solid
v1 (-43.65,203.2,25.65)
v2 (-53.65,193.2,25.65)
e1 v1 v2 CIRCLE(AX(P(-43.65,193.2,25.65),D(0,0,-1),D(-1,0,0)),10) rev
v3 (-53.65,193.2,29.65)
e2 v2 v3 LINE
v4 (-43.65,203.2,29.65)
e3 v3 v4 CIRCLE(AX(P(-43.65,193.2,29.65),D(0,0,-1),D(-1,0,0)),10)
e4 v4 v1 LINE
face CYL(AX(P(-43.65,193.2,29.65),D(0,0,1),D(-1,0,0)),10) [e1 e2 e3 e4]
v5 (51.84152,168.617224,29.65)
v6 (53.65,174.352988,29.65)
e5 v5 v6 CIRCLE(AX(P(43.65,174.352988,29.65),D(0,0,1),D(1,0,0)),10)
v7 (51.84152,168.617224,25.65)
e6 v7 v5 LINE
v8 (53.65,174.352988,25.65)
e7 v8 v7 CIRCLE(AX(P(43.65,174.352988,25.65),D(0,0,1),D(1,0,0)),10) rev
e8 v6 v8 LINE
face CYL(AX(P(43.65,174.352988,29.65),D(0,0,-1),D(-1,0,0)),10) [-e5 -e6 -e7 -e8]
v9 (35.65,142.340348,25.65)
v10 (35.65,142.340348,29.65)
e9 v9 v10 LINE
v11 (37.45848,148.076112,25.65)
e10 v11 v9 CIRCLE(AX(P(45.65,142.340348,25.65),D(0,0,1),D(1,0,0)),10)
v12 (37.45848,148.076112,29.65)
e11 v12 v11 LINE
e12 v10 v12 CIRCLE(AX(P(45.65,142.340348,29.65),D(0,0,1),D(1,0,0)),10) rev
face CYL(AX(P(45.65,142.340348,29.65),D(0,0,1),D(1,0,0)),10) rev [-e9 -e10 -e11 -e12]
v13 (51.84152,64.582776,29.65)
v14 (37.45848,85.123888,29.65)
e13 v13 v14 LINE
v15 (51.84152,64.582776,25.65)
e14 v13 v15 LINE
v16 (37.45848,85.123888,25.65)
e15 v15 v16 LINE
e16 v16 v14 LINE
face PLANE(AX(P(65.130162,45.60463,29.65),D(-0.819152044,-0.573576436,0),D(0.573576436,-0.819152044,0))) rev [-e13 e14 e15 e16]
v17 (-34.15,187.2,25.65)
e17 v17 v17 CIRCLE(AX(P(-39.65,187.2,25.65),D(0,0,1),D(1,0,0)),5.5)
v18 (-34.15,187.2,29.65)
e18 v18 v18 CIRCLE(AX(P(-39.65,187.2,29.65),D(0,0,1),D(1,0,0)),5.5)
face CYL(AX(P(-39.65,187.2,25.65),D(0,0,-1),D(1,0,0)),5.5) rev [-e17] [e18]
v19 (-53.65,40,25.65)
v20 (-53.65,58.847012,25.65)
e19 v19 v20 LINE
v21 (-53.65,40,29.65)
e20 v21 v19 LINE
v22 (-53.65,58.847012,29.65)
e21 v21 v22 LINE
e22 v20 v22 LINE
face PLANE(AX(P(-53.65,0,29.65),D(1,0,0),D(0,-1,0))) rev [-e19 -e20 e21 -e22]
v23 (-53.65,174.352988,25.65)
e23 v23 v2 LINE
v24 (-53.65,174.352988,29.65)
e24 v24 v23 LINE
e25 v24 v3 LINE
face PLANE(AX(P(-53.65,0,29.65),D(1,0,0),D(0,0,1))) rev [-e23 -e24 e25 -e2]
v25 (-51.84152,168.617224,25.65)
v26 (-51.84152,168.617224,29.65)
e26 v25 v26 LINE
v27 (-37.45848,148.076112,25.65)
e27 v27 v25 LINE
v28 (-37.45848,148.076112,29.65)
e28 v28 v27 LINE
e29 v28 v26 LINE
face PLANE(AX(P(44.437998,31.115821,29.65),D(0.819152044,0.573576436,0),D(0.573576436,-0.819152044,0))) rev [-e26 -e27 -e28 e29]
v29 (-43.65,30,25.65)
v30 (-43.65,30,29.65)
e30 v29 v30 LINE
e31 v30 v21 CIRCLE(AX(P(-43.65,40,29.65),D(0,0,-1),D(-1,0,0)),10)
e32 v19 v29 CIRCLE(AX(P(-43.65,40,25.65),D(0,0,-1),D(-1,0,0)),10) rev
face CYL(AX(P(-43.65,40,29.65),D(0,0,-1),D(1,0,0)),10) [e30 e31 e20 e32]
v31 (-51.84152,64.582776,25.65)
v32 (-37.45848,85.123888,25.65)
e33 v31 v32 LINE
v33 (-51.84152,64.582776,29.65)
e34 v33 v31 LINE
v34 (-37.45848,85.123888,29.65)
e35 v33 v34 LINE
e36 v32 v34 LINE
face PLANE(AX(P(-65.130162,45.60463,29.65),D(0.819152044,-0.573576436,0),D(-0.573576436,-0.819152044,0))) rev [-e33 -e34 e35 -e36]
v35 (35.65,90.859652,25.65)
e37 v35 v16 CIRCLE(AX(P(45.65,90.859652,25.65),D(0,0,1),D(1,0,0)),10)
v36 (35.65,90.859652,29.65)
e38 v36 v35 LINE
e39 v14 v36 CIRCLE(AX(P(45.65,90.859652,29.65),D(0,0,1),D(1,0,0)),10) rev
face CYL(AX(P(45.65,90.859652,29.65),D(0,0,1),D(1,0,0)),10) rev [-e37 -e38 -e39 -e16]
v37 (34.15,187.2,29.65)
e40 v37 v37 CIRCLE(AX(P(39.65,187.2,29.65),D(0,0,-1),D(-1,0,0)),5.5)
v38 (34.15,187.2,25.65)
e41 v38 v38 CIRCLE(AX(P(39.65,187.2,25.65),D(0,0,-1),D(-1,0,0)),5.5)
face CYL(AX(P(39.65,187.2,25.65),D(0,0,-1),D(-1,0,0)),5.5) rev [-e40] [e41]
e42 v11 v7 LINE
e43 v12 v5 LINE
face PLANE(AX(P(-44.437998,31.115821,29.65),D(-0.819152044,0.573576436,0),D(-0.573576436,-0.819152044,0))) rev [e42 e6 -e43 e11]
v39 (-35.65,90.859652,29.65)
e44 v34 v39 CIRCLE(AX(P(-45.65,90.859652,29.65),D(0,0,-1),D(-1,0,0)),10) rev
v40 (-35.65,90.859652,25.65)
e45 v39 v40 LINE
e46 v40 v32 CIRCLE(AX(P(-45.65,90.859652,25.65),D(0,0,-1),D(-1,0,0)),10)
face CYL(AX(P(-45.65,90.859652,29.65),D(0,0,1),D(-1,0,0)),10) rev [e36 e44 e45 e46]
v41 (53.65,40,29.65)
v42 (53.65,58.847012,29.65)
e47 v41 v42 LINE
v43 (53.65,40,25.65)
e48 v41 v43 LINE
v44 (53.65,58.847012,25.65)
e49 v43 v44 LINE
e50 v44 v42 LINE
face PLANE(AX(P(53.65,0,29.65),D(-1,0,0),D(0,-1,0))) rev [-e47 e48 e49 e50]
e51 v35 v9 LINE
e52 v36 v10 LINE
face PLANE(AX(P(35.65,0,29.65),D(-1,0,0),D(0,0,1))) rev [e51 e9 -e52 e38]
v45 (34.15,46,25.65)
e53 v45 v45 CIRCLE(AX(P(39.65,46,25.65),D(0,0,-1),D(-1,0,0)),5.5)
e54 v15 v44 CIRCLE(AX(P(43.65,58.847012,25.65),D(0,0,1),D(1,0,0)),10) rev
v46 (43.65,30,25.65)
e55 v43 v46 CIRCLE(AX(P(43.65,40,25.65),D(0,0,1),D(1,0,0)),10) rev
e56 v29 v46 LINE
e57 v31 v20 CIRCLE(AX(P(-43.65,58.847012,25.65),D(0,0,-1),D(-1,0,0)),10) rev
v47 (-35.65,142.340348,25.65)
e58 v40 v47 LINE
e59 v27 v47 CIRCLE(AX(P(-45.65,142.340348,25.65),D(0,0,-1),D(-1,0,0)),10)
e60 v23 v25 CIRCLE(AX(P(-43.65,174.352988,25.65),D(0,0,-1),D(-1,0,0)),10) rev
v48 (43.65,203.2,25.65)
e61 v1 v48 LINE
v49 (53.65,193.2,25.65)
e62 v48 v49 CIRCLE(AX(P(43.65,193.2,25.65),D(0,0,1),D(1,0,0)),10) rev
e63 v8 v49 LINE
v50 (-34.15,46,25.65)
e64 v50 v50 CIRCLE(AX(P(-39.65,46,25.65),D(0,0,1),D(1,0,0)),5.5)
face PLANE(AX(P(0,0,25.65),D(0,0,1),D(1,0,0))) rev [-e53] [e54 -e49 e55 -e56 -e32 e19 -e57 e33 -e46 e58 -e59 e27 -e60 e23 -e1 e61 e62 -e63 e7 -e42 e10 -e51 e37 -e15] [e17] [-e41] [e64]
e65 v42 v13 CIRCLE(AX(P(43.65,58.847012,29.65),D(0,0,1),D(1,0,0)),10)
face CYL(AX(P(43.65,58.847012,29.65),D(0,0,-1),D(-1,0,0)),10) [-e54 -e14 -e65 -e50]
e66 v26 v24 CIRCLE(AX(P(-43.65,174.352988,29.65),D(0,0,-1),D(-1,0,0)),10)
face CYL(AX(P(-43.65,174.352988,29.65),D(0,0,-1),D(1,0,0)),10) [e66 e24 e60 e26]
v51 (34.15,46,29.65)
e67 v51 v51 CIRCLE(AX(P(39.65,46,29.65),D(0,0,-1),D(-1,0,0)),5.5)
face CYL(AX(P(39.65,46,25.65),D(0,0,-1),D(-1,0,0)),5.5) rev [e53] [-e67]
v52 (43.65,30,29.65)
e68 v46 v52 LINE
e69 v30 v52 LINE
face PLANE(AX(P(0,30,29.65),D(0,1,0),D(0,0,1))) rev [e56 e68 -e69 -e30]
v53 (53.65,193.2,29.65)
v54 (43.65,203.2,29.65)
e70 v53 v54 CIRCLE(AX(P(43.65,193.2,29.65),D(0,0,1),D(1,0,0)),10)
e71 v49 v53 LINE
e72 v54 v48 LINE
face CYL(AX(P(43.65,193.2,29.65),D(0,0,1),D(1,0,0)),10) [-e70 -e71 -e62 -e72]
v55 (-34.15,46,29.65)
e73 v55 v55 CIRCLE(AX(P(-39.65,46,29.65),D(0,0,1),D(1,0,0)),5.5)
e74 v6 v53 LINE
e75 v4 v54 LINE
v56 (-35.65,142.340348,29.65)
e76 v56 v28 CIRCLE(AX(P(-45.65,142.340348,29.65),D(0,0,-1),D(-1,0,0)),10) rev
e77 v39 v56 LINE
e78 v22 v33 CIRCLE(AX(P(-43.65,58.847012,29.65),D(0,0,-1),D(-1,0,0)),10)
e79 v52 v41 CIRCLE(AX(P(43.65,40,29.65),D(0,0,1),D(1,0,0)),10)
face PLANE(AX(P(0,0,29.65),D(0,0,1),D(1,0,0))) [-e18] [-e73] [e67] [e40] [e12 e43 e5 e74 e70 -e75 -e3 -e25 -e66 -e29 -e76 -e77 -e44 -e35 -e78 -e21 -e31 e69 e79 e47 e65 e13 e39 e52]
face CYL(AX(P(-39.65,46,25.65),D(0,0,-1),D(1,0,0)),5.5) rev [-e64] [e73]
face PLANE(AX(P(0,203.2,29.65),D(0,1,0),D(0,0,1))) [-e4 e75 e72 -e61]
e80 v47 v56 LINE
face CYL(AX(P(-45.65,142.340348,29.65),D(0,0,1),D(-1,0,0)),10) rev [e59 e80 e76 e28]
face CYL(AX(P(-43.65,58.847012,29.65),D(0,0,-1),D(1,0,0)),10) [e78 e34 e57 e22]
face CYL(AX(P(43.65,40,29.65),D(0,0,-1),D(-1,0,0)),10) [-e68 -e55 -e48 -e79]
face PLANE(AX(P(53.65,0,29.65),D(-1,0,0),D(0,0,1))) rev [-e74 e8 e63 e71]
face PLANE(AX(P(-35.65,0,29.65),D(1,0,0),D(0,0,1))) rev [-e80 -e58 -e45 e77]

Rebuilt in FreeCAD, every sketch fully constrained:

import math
import FreeCAD as App
import Part
import Sketcher
Q = App.Units.Quantity


def edges_at(feature, points):
    """Names of the edges that pass closest to the given points."""
    edges = feature.Shape.Edges
    near = lambda p: min(range(len(edges)), key=lambda i: edges[i].distToShape(Part.Vertex(*p))[0])
    return sorted({f"Edge{near(p) + 1}" for p in points})

doc = App.newDocument("Part")
body = doc.addObject("PartDesign::Body", "Body")

sketch1 = doc.addObject("Sketcher::SketchObject", "Sketch")
body.addObject(sketch1)
sketch1.AttachmentSupport = (doc.XY_Plane, [""])
sketch1.MapMode = "FlatFace"
sketch1.addGeometry([
    Part.LineSegment(App.Vector(-25.65, 203.2, 0), App.Vector(-25.65, 0, 0)),
    Part.LineSegment(App.Vector(-25.65, 0, 0), App.Vector(-21.07866, 0, 0)),
    Part.LineSegment(App.Vector(-21.07866, 0, 0), App.Vector(-21.07866, 203.2, 0)),
    Part.LineSegment(App.Vector(-21.07866, 203.2, 0), App.Vector(-25.65, 203.2, 0)),
], False)
sketch1.addConstraint([
    Sketcher.Constraint("Coincident", 0, 2, 1, 1),
    Sketcher.Constraint("Coincident", 1, 2, 2, 1),
    Sketcher.Constraint("Coincident", 2, 2, 3, 1),
    Sketcher.Constraint("Coincident", 3, 2, 0, 1),
    Sketcher.Constraint("Vertical", 0),
    Sketcher.Constraint("Horizontal", 1),
    Sketcher.Constraint("Vertical", 2),
    Sketcher.Constraint("Horizontal", 3),
    Sketcher.Constraint("PointOnObject", 0, 2, -1),
    Sketcher.Constraint("DistanceY", 0, 2, 0, 1, Q("203.2 mm")),
    Sketcher.Constraint("DistanceX", 0, 2, -1, 1, Q("25.65 mm")),
    Sketcher.Constraint("DistanceX", 1, 1, 1, 2, Q("4.57134 mm")),
])
revolution = doc.addObject("PartDesign::Revolution", "Revolution")
body.addObject(revolution)
revolution.Profile = sketch1
revolution.ReferenceAxis = (sketch1, ["V_Axis"])
revolution.Angle = 360

sketch2 = doc.addObject("Sketcher::SketchObject", "Sketch001")
body.addObject(sketch2)
sketch2.AttachmentSupport = (doc.XZ_Plane, [""])
sketch2.MapMode = "FlatFace"
sketch2.AttachmentOffset = App.Placement(App.Vector(0, 0, -203.2), App.Rotation())
sketch2.addGeometry([
    Part.LineSegment(App.Vector(25.65, 0, 0), App.Vector(25.65, 25.65, 0)),
    Part.LineSegment(App.Vector(25.65, 25.65, 0), App.Vector(0, 25.65, 0)),
    Part.ArcOfCircle(Part.Circle(App.Vector(0, 0, 0), App.Vector(0, 0, 1), 25.65), math.radians(0), math.radians(90)),
    Part.ArcOfCircle(Part.Circle(App.Vector(0, 0, 0), App.Vector(0, 0, 1), 25.65), math.radians(90), math.radians(180)),
    Part.LineSegment(App.Vector(0, 25.65, 0), App.Vector(-25.65, 25.65, 0)),
    Part.LineSegment(App.Vector(-25.65, 25.65, 0), App.Vector(-25.65, 0, 0)),
], False)
sketch2.addConstraint([
    Sketcher.Constraint("Coincident", 0, 2, 1, 1),
    Sketcher.Constraint("Tangent", 1, 2, 2, 2),
    Sketcher.Constraint("Tangent", 2, 1, 0, 1),
    Sketcher.Constraint("Tangent", 3, 1, 4, 1),
    Sketcher.Constraint("Coincident", 4, 2, 5, 1),
    Sketcher.Constraint("Tangent", 5, 2, 3, 2),
    Sketcher.Constraint("Vertical", 0),
    Sketcher.Constraint("Horizontal", 1),
    Sketcher.Constraint("Horizontal", 4),
    Sketcher.Constraint("Vertical", 5),
    Sketcher.Constraint("Coincident", 2, 3, -1, 1),
    Sketcher.Constraint("Coincident", 3, 3, -1, 1),
    Sketcher.Constraint("Equal", 2, 3),
    Sketcher.Constraint("Radius", 2, Q("25.65 mm")),
])
pad1 = doc.addObject("PartDesign::Pad", "Pad")
body.addObject(pad1)
pad1.Profile = sketch2
pad1.Length = 173.2
body2 = doc.addObject("PartDesign::Body", "Body001")

sketch3 = doc.addObject("Sketcher::SketchObject", "Sketch002")
body2.addObject(sketch3)
sketch3.AttachmentSupport = (doc.getObject("XY_Plane001"), [""])
sketch3.MapMode = "FlatFace"
sketch3.AttachmentOffset = App.Placement(App.Vector(0, 0, 25.65), App.Rotation())
sketch3.addGeometry([
    Part.LineSegment(App.Vector(53.65, 203.2, 0), App.Vector(-25.65, 203.2, 0)),
    Part.LineSegment(App.Vector(-25.65, 203.2, 0), App.Vector(-25.65, 30, 0)),
    Part.LineSegment(App.Vector(-25.65, 30, 0), App.Vector(53.65, 30, 0)),
    Part.LineSegment(App.Vector(53.65, 30, 0), App.Vector(53.65, 62, 0)),
    Part.LineSegment(App.Vector(53.65, 62, 0), App.Vector(35.65, 87.706664, 0)),
    Part.LineSegment(App.Vector(35.65, 87.706664, 0), App.Vector(35.65, 145.493336, 0)),
    Part.LineSegment(App.Vector(35.65, 145.493336, 0), App.Vector(53.65, 171.2, 0)),
    Part.LineSegment(App.Vector(53.65, 171.2, 0), App.Vector(53.65, 203.2, 0)),
], False)
sketch3.addConstraint([
    Sketcher.Constraint("Coincident", 0, 2, 1, 1),
    Sketcher.Constraint("Coincident", 1, 2, 2, 1),
    Sketcher.Constraint("Coincident", 2, 2, 3, 1),
    Sketcher.Constraint("Coincident", 3, 2, 4, 1),
    Sketcher.Constraint("Coincident", 4, 2, 5, 1),
    Sketcher.Constraint("Coincident", 5, 2, 6, 1),
    Sketcher.Constraint("Coincident", 6, 2, 7, 1),
    Sketcher.Constraint("Coincident", 7, 2, 0, 1),
    Sketcher.Constraint("Horizontal", 0),
    Sketcher.Constraint("Vertical", 1),
    Sketcher.Constraint("Horizontal", 2),
    Sketcher.Constraint("Vertical", 3),
    Sketcher.Constraint("Vertical", 5),
    Sketcher.Constraint("Vertical", 7),
    Sketcher.Constraint("Vertical", 3, 2, 6, 2),
    Sketcher.Constraint("Equal", 3, 7),
    Sketcher.Constraint("Equal", 4, 6),
    Sketcher.Constraint("DistanceY", 3, 1, 3, 2, Q("32 mm")),
    Sketcher.Constraint("Angle", 4, Q("125 deg")),
    Sketcher.Constraint("DistanceX", 0, 2, 0, 1, Q("79.3 mm")),
    Sketcher.Constraint("DistanceY", 1, 2, 1, 1, Q("173.2 mm")),
    Sketcher.Constraint("DistanceY", -1, 1, 1, 2, Q("30 mm")),
    Sketcher.Constraint("DistanceX", 4, 2, 3, 2, Q("18 mm")),
    Sketcher.Constraint("DistanceX", 0, 2, -1, 1, Q("25.65 mm")),
])
pad2 = doc.addObject("PartDesign::Pad", "Pad001")
body2.addObject(pad2)
pad2.Profile = sketch3
pad2.Length = 4

sketch4 = doc.addObject("Sketcher::SketchObject", "Sketch003")
body2.addObject(sketch4)
sketch4.AttachmentSupport = (doc.getObject("YZ_Plane001"), [""])
sketch4.MapMode = "FlatFace"
sketch4.AttachmentOffset = App.Placement(App.Vector(0, 0, 39.65), App.Rotation())
sketch4.addGeometry([
    Part.LineSegment(App.Vector(46, 29.65, 0), App.Vector(46, 25.65, 0)),
    Part.LineSegment(App.Vector(46, 25.65, 0), App.Vector(51.5, 25.65, 0)),
    Part.LineSegment(App.Vector(51.5, 25.65, 0), App.Vector(51.5, 29.65, 0)),
    Part.LineSegment(App.Vector(51.5, 29.65, 0), App.Vector(46, 29.65, 0)),
], False)
sketch4.addGeometry(Part.LineSegment(App.Vector(46, 25.65, 0), App.Vector(46, 29.65, 0)), True)
sketch4.addConstraint([
    Sketcher.Constraint("Coincident", 0, 2, 1, 1),
    Sketcher.Constraint("Coincident", 1, 2, 2, 1),
    Sketcher.Constraint("Coincident", 2, 2, 3, 1),
    Sketcher.Constraint("Coincident", 3, 2, 0, 1),
    Sketcher.Constraint("Vertical", 0),
    Sketcher.Constraint("Horizontal", 1),
    Sketcher.Constraint("Vertical", 2),
    Sketcher.Constraint("Horizontal", 3),
    Sketcher.Constraint("Vertical", 4),
    Sketcher.Constraint("Coincident", 4, 1, 0, 2),
    Sketcher.Constraint("Horizontal", 2, 2, 4, 2),
    Sketcher.Constraint("DistanceY", 0, 2, 0, 1, Q("4 mm")),
    Sketcher.Constraint("DistanceX", 1, 1, 1, 2, Q("5.5 mm")),
    Sketcher.Constraint("DistanceX", -1, 1, 0, 2, Q("46 mm")),
    Sketcher.Constraint("DistanceY", -1, 1, 0, 2, Q("25.65 mm")),
])
groove = doc.addObject("PartDesign::Groove", "Groove")
body2.addObject(groove)
groove.Profile = sketch4
groove.ReferenceAxis = (sketch4, ["Axis0"])
groove.Angle = 360
doc.recompute()

linearpattern = doc.addObject("PartDesign::LinearPattern", "LinearPattern")
body2.addObject(linearpattern)
linearpattern.Originals = [groove]
linearpattern.Direction = (doc.getObject("Y_Axis001"), [""])
linearpattern.Mode = "offset"
linearpattern.Offset = 141.2
linearpattern.Occurrences = 2
body2.Tip = linearpattern
doc.recompute()

fillet = doc.addObject("PartDesign::Fillet", "Fillet")
body2.addObject(fillet)
fillet.Base = (linearpattern, edges_at(linearpattern, [
    (53.65, 203.2, 27.65),
    (53.65, 171.2, 27.65),
    (35.65, 145.493, 27.65),
    (35.65, 87.707, 27.65),
    (53.65, 62, 27.65),
    (53.65, 30, 27.65),
]))
fillet.Radius = 10
doc.recompute()

mirrored = doc.addObject("PartDesign::Mirrored", "Mirrored")
body2.addObject(mirrored)
mirrored.Originals = [pad2, groove]
mirrored.MirrorPlane = (doc.getObject("YZ_Plane001"), [""])
body2.Tip = mirrored

sketch5 = doc.addObject("Sketcher::SketchObject", "Sketch004")
body2.addObject(sketch5)
sketch5.AttachmentSupport = (doc.getObject("YZ_Plane001"), [""])
sketch5.MapMode = "FlatFace"
sketch5.AttachmentOffset = App.Placement(App.Vector(0, 0, -39.65), App.Rotation())
sketch5.addGeometry([
    Part.LineSegment(App.Vector(187.2, 25.65, 0), App.Vector(187.2, 29.65, 0)),
    Part.LineSegment(App.Vector(187.2, 29.65, 0), App.Vector(192.7, 29.65, 0)),
    Part.LineSegment(App.Vector(192.7, 29.65, 0), App.Vector(192.7, 25.65, 0)),
    Part.LineSegment(App.Vector(192.7, 25.65, 0), App.Vector(187.2, 25.65, 0)),
], False)
sketch5.addGeometry(Part.LineSegment(App.Vector(187.2, 29.65, 0), App.Vector(187.2, 25.65, 0)), True)
sketch5.addConstraint([
    Sketcher.Constraint("Coincident", 0, 2, 1, 1),
    Sketcher.Constraint("Coincident", 1, 2, 2, 1),
    Sketcher.Constraint("Coincident", 2, 2, 3, 1),
    Sketcher.Constraint("Coincident", 3, 2, 0, 1),
    Sketcher.Constraint("Vertical", 0),
    Sketcher.Constraint("Horizontal", 1),
    Sketcher.Constraint("Vertical", 2),
    Sketcher.Constraint("Horizontal", 3),
    Sketcher.Constraint("Vertical", 4),
    Sketcher.Constraint("Coincident", 4, 1, 0, 2),
    Sketcher.Constraint("Horizontal", 2, 2, 4, 2),
    Sketcher.Constraint("DistanceY", 0, 1, 0, 2, Q("4 mm")),
    Sketcher.Constraint("DistanceX", 1, 1, 1, 2, Q("5.5 mm")),
    Sketcher.Constraint("DistanceX", -1, 1, 0, 2, Q("187.2 mm")),
    Sketcher.Constraint("DistanceY", -1, 1, 0, 2, Q("29.65 mm")),
])
groove2 = doc.addObject("PartDesign::Groove", "Groove001")
body2.addObject(groove2)
groove2.Profile = sketch5
groove2.ReferenceAxis = (sketch5, ["Axis0"])
groove2.Angle = 360
doc.recompute()

fillet2 = doc.addObject("PartDesign::Fillet", "Fillet001")
body2.addObject(fillet2)
fillet2.Base = (groove2, edges_at(groove2, [
    (-53.65, 203.2, 27.65),
    (-53.65, 171.2, 27.65),
    (-35.65, 145.493, 27.65),
    (-35.65, 87.707, 27.65),
    (-53.65, 62, 27.65),
    (-53.65, 30, 27.65),
]))
fillet2.Radius = 10
body.Visibility = False

doc.recompute()
